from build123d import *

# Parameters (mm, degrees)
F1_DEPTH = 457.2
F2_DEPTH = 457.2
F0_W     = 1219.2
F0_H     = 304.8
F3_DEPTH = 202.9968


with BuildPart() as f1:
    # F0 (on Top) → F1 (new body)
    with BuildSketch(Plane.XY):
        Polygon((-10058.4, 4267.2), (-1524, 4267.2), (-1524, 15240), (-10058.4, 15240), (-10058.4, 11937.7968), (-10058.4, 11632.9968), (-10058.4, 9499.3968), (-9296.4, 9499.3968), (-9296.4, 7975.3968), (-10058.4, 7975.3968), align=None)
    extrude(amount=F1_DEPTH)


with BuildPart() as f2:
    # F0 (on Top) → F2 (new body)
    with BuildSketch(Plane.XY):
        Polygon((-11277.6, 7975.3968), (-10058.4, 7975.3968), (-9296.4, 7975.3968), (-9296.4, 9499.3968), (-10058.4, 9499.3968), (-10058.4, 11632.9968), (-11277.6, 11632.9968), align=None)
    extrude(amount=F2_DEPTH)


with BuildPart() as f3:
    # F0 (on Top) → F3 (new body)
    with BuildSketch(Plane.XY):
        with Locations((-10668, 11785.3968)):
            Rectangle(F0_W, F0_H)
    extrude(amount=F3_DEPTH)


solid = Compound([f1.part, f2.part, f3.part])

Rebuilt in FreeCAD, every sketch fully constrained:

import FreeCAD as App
import Part
import Sketcher
Q = App.Units.Quantity

doc = App.newDocument("Part")
body = doc.addObject("PartDesign::Body", "Body")

sketch1 = body.newObject("Sketcher::SketchObject", "Sketch")
sketch1.AttachmentSupport = (doc.getObject("XY_Plane"), [""])
sketch1.MapMode = "FlatFace"
sketch1.addGeometry([
    Part.LineSegment(App.Vector(-10058.4, 4267.2, 0), App.Vector(-1524, 4267.2, 0)),
    Part.LineSegment(App.Vector(-1524, 4267.2, 0), App.Vector(-1524, 15240, 0)),
    Part.LineSegment(App.Vector(-1524, 15240, 0), App.Vector(-10058.4, 15240, 0)),
    Part.LineSegment(App.Vector(-10058.4, 15240, 0), App.Vector(-10058.4, 9499.3968, 0)),
    Part.LineSegment(App.Vector(-10058.4, 9499.3968, 0), App.Vector(-9296.4, 9499.3968, 0)),
    Part.LineSegment(App.Vector(-9296.4, 9499.3968, 0), App.Vector(-9296.4, 7975.3968, 0)),
    Part.LineSegment(App.Vector(-9296.4, 7975.3968, 0), App.Vector(-10058.4, 7975.3968, 0)),
    Part.LineSegment(App.Vector(-10058.4, 7975.3968, 0), App.Vector(-10058.4, 4267.2, 0)),
], False)
sketch1.addConstraint([
    Sketcher.Constraint("Coincident", 0, 2, 1, 1),
    Sketcher.Constraint("Coincident", 1, 2, 2, 1),
    Sketcher.Constraint("Coincident", 2, 2, 3, 1),
    Sketcher.Constraint("Coincident", 3, 2, 4, 1),
    Sketcher.Constraint("Coincident", 4, 2, 5, 1),
    Sketcher.Constraint("Coincident", 5, 2, 6, 1),
    Sketcher.Constraint("Coincident", 6, 2, 7, 1),
    Sketcher.Constraint("Coincident", 7, 2, 0, 1),
    Sketcher.Constraint("Horizontal", 0),
    Sketcher.Constraint("Vertical", 1),
    Sketcher.Constraint("Horizontal", 2),
    Sketcher.Constraint("Vertical", 3),
    Sketcher.Constraint("Horizontal", 4),
    Sketcher.Constraint("Vertical", 5),
    Sketcher.Constraint("Horizontal", 6),
    Sketcher.Constraint("Vertical", 7),
    Sketcher.Constraint("Vertical", 3, 2, 6, 2),
    Sketcher.Constraint("DistanceX", 0, 1, 0, 2, Q("336 in")),
    Sketcher.Constraint("DistanceX", 4, 1, 4, 2, Q("30 in")),
    Sketcher.Constraint("DistanceY", 1, 1, 1, 2, Q("432 in")),
    Sketcher.Constraint("DistanceY", 5, 2, 5, 1, Q("60 in")),
    Sketcher.Constraint("DistanceX", 0, 2, -1, 1, Q("60 in")),
    Sketcher.Constraint("DistanceY", -1, 1, 0, 2, Q("168 in")),
    Sketcher.Constraint("DistanceY", 3, 2, 3, 1, Q("226.008 in")),
])
pad1 = body.newObject("PartDesign::Pad", "Pad")
pad1.Profile = sketch1
pad1.Length = Q("18 in")
body2 = doc.addObject("PartDesign::Body", "Body001")

sketch2 = body2.newObject("Sketcher::SketchObject", "Sketch001")
sketch2.AttachmentSupport = (doc.getObject("XY_Plane001"), [""])
sketch2.MapMode = "FlatFace"
sketch2.addGeometry([
    Part.LineSegment(App.Vector(-11277.6, 7975.3968, 0), App.Vector(-9296.4, 7975.3968, 0)),
    Part.LineSegment(App.Vector(-9296.4, 7975.3968, 0), App.Vector(-9296.4, 9499.3968, 0)),
    Part.LineSegment(App.Vector(-9296.4, 9499.3968, 0), App.Vector(-10058.4, 9499.3968, 0)),
    Part.LineSegment(App.Vector(-10058.4, 9499.3968, 0), App.Vector(-10058.4, 11632.9968, 0)),
    Part.LineSegment(App.Vector(-10058.4, 11632.9968, 0), App.Vector(-11277.6, 11632.9968, 0)),
    Part.LineSegment(App.Vector(-11277.6, 11632.9968, 0), App.Vector(-11277.6, 7975.3968, 0)),
], False)
sketch2.addConstraint([
    Sketcher.Constraint("Coincident", 0, 2, 1, 1),
    Sketcher.Constraint("Coincident", 1, 2, 2, 1),
    Sketcher.Constraint("Coincident", 2, 2, 3, 1),
    Sketcher.Constraint("Coincident", 3, 2, 4, 1),
    Sketcher.Constraint("Coincident", 4, 2, 5, 1),
    Sketcher.Constraint("Coincident", 5, 2, 0, 1),
    Sketcher.Constraint("Horizontal", 0),
    Sketcher.Constraint("Vertical", 1),
    Sketcher.Constraint("Horizontal", 2),
    Sketcher.Constraint("Vertical", 3),
    Sketcher.Constraint("Horizontal", 4),
    Sketcher.Constraint("Vertical", 5),
    Sketcher.Constraint("DistanceX", 0, 1, 0, 2, Q("78 in")),
    Sketcher.Constraint("DistanceX", 2, 2, 2, 1, Q("30 in")),
    Sketcher.Constraint("DistanceY", 1, 1, 1, 2, Q("60 in")),
    Sketcher.Constraint("DistanceY", 3, 1, 3, 2, Q("84 in")),
    Sketcher.Constraint("DistanceX", 0, 2, -1, 1, Q("366 in")),
    Sketcher.Constraint("DistanceY", -1, 1, 0, 2, Q("313.992 in")),
])
pad2 = body2.newObject("PartDesign::Pad", "Pad001")
pad2.Profile = sketch2
pad2.Length = Q("18 in")
body3 = doc.addObject("PartDesign::Body", "Body002")

sketch3 = body3.newObject("Sketcher::SketchObject", "Sketch002")
sketch3.AttachmentSupport = (doc.getObject("XY_Plane002"), [""])
sketch3.MapMode = "FlatFace"
sketch3.addGeometry([
    Part.LineSegment(App.Vector(-11277.6, 11937.7968, 0), App.Vector(-11277.6, 11632.9968, 0)),
    Part.LineSegment(App.Vector(-11277.6, 11632.9968, 0), App.Vector(-10058.4, 11632.9968, 0)),
    Part.LineSegment(App.Vector(-10058.4, 11632.9968, 0), App.Vector(-10058.4, 11937.7968, 0)),
    Part.LineSegment(App.Vector(-10058.4, 11937.7968, 0), App.Vector(-11277.6, 11937.7968, 0)),
], False)
sketch3.addConstraint([
    Sketcher.Constraint("Coincident", 0, 2, 1, 1),
    Sketcher.Constraint("Coincident", 1, 2, 2, 1),
    Sketcher.Constraint("Coincident", 2, 2, 3, 1),
    Sketcher.Constraint("Coincident", 3, 2, 0, 1),
    Sketcher.Constraint("Vertical", 0),
    Sketcher.Constraint("Horizontal", 1),
    Sketcher.Constraint("Vertical", 2),
    Sketcher.Constraint("Horizontal", 3),
    Sketcher.Constraint("DistanceX", 1, 1, 1, 2, Q("48 in")),
    Sketcher.Constraint("DistanceY", 0, 2, 0, 1, Q("12 in")),
    Sketcher.Constraint("DistanceX", 0, 2, -1, 1, Q("444 in")),
    Sketcher.Constraint("DistanceY", -1, 1, 0, 2, Q("457.992 in")),
])
pad3 = body3.newObject("PartDesign::Pad", "Pad002")
pad3.Profile = sketch3
pad3.Length = Q("7.992 in")

doc.recompute()
